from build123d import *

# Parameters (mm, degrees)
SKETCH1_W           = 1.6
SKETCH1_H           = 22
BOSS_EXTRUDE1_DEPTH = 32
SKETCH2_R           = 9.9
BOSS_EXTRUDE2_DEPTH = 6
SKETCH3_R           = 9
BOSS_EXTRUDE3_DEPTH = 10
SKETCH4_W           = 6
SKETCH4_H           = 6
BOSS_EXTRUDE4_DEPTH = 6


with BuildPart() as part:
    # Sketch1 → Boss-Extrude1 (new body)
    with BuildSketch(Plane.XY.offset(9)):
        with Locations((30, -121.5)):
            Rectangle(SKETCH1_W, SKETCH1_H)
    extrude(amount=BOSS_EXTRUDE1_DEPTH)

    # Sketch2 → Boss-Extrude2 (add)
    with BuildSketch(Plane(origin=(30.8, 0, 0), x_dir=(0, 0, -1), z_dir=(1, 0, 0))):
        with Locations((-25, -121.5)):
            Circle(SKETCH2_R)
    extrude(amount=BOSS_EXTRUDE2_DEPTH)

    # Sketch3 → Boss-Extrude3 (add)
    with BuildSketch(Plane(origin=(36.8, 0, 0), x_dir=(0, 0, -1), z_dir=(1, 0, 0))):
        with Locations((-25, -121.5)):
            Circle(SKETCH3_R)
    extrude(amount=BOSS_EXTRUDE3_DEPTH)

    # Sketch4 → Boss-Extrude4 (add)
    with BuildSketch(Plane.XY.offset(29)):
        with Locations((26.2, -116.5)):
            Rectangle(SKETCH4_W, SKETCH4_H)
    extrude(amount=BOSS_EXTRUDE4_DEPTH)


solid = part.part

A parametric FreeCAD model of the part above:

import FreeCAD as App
import Part
import Sketcher
from FreeCAD import Vector
Q = App.Units.Quantity


def add_polygon(sketch, points):
    """Adds a closed chain of lines whose ends are joined by coincident constraints."""
    first, n = sketch.GeometryCount, len(points)
    for a, b in zip(points, points[1:] + points[:1]):
        sketch.addGeometry(Part.LineSegment(App.Vector(*a, 0), App.Vector(*b, 0)), False)
    for i in range(n):
        sketch.addConstraint(Sketcher.Constraint("Coincident", first + i, 2, first + (i + 1) % n, 1))

doc = App.newDocument("Part")
body = doc.addObject("PartDesign::Body", "Body")

sketch1 = doc.addObject("Sketcher::SketchObject", "Sketch")
body.addObject(sketch1)
sketch1.AttachmentSupport = (doc.XY_Plane, [""])
sketch1.MapMode = "FlatFace"
sketch1.AttachmentOffset = App.Placement(Vector(0, 0, 9), App.Rotation())
add_polygon(sketch1, [(29.2, -110.5), (29.2, -132.5), (30.8, -132.5), (30.8, -110.5)])
sketch1.addConstraint(Sketcher.Constraint("Vertical", 0))
sketch1.addConstraint(Sketcher.Constraint("Horizontal", 1))
sketch1.addConstraint(Sketcher.Constraint("Vertical", 2))
sketch1.addConstraint(Sketcher.Constraint("Horizontal", 3))
sketch1.addConstraint(Sketcher.Constraint("DistanceY", 0, 2, 0, 1, Q("22 mm")))
sketch1.addConstraint(Sketcher.Constraint("DistanceX", 1, 1, 1, 2, Q("1.6 mm")))
sketch1.addConstraint(Sketcher.Constraint("DistanceX", -1, 1, 0, 2, Q("29.2 mm")))
sketch1.addConstraint(Sketcher.Constraint("DistanceY", 0, 2, -1, 1, Q("132.5 mm")))
pad1 = doc.addObject("PartDesign::Pad", "Pad")
body.addObject(pad1)
pad1.Profile = sketch1
pad1.Length = 32

sketch2 = doc.addObject("Sketcher::SketchObject", "Sketch001")
body.addObject(sketch2)
sketch2.AttachmentSupport = (doc.YZ_Plane, [""])
sketch2.MapMode = "FlatFace"
sketch2.AttachmentOffset = App.Placement(Vector(0, 0, 30.8), App.Rotation())
sketch2.addGeometry(Part.Circle(Vector(-122, 25, 0), Vector(0, 0, 1), 10), False)
sketch2.addConstraint(Sketcher.Constraint("Diameter", 0, Q("19.8 mm")))
sketch2.addConstraint(Sketcher.Constraint("DistanceY", -1, 1, 0, 3, Q("25 mm")))
sketch2.addConstraint(Sketcher.Constraint("DistanceX", 0, 3, -1, 1, Q("121.5 mm")))
pad2 = doc.addObject("PartDesign::Pad", "Pad001")
body.addObject(pad2)
pad2.Profile = sketch2
pad2.Length = 6

sketch3 = doc.addObject("Sketcher::SketchObject", "Sketch002")
body.addObject(sketch3)
sketch3.AttachmentSupport = (doc.YZ_Plane, [""])
sketch3.MapMode = "FlatFace"
sketch3.AttachmentOffset = App.Placement(Vector(0, 0, 36.8), App.Rotation())
sketch3.addGeometry(Part.Circle(Vector(-122, 25, 0), Vector(0, 0, 1), 9), False)
sketch3.addConstraint(Sketcher.Constraint("Diameter", 0, Q("18 mm")))
sketch3.addConstraint(Sketcher.Constraint("DistanceY", -1, 1, 0, 3, Q("25 mm")))
sketch3.addConstraint(Sketcher.Constraint("DistanceX", 0, 3, -1, 1, Q("121.5 mm")))
pad3 = doc.addObject("PartDesign::Pad", "Pad002")
body.addObject(pad3)
pad3.Profile = sketch3
pad3.Length = 10

sketch4 = doc.addObject("Sketcher::SketchObject", "Sketch003")
body.addObject(sketch4)
sketch4.AttachmentSupport = (doc.XY_Plane, [""])
sketch4.MapMode = "FlatFace"
sketch4.AttachmentOffset = App.Placement(Vector(0, 0, 29), App.Rotation())
add_polygon(sketch4, [(23, -114), (23, -120), (29, -120), (29, -114)])
sketch4.addConstraint(Sketcher.Constraint("Vertical", 0))
sketch4.addConstraint(Sketcher.Constraint("Horizontal", 1))
sketch4.addConstraint(Sketcher.Constraint("Vertical", 2))
sketch4.addConstraint(Sketcher.Constraint("Horizontal", 3))
sketch4.addConstraint(Sketcher.Constraint("Equal", 3, 0))
sketch4.addConstraint(Sketcher.Constraint("DistanceX", 1, 1, 1, 2, Q("6 mm")))
sketch4.addConstraint(Sketcher.Constraint("DistanceX", -1, 1, 0, 2, Q("23.2 mm")))
sketch4.addConstraint(Sketcher.Constraint("DistanceY", 0, 2, -1, 1, Q("119.5 mm")))
pad4 = doc.addObject("PartDesign::Pad", "Pad003")
body.addObject(pad4)
pad4.Profile = sketch4
pad4.Length = 6

doc.recompute()
